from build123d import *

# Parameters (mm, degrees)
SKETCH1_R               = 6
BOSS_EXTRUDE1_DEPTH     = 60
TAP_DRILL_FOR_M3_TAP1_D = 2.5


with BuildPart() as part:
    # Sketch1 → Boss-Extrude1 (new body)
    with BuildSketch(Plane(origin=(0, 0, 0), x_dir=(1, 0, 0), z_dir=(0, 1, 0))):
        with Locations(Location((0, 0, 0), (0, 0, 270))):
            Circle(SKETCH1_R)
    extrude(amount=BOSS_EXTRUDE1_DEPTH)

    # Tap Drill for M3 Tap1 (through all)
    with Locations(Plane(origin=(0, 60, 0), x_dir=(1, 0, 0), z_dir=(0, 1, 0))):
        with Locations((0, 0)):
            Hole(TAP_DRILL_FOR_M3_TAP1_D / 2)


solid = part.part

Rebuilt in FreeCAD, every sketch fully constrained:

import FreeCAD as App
import Part
import Sketcher

doc = App.newDocument("Part")
body = doc.addObject("PartDesign::Body", "Body")

# Sketch on XZ plane
sketch1 = doc.addObject("Sketcher::SketchObject", "Sketch")
body.addObject(sketch1)
sketch1.AttachmentSupport = (doc.XZ_Plane, [""])
sketch1.MapMode = "FlatFace"
sketch1.addGeometry(Part.Circle(App.Vector(0, 0, 0), App.Vector(0, 0, 1), 6), False)
sketch1.addConstraint([
    Sketcher.Constraint("Coincident", 0, 3, -1, 1),
    Sketcher.Constraint("Diameter", 0, 12.0),
])
pad1 = doc.addObject("PartDesign::Pad", "Pad")
body.addObject(pad1)
pad1.Profile = sketch1
pad1.Length = 60
pad1.Reversed = True

# Sketch on XZ plane
sketch2 = doc.addObject("Sketcher::SketchObject", "Sketch001")
body.addObject(sketch2)
sketch2.AttachmentSupport = (doc.XZ_Plane, [""])
sketch2.MapMode = "FlatFace"
sketch2.AttachmentOffset = App.Placement(App.Vector(0, 0, -60), App.Rotation())
sketch2.addGeometry(Part.Circle(App.Vector(0, 0, 0), App.Vector(0, 0, 1), 1.2), False)
sketch2.addConstraint([
    Sketcher.Constraint("Coincident", 0, 3, -1, 1),
    Sketcher.Constraint("Diameter", 0, 2.5),
])
doc.recompute()
hole = doc.addObject("PartDesign::Hole", "Hole")
body.addObject(hole)
hole.Profile = sketch2
hole.ThreadType = "None"
hole.Diameter = 2.5
hole.DepthType = "ThroughAll"
hole.Reversed = True

doc.recompute()
